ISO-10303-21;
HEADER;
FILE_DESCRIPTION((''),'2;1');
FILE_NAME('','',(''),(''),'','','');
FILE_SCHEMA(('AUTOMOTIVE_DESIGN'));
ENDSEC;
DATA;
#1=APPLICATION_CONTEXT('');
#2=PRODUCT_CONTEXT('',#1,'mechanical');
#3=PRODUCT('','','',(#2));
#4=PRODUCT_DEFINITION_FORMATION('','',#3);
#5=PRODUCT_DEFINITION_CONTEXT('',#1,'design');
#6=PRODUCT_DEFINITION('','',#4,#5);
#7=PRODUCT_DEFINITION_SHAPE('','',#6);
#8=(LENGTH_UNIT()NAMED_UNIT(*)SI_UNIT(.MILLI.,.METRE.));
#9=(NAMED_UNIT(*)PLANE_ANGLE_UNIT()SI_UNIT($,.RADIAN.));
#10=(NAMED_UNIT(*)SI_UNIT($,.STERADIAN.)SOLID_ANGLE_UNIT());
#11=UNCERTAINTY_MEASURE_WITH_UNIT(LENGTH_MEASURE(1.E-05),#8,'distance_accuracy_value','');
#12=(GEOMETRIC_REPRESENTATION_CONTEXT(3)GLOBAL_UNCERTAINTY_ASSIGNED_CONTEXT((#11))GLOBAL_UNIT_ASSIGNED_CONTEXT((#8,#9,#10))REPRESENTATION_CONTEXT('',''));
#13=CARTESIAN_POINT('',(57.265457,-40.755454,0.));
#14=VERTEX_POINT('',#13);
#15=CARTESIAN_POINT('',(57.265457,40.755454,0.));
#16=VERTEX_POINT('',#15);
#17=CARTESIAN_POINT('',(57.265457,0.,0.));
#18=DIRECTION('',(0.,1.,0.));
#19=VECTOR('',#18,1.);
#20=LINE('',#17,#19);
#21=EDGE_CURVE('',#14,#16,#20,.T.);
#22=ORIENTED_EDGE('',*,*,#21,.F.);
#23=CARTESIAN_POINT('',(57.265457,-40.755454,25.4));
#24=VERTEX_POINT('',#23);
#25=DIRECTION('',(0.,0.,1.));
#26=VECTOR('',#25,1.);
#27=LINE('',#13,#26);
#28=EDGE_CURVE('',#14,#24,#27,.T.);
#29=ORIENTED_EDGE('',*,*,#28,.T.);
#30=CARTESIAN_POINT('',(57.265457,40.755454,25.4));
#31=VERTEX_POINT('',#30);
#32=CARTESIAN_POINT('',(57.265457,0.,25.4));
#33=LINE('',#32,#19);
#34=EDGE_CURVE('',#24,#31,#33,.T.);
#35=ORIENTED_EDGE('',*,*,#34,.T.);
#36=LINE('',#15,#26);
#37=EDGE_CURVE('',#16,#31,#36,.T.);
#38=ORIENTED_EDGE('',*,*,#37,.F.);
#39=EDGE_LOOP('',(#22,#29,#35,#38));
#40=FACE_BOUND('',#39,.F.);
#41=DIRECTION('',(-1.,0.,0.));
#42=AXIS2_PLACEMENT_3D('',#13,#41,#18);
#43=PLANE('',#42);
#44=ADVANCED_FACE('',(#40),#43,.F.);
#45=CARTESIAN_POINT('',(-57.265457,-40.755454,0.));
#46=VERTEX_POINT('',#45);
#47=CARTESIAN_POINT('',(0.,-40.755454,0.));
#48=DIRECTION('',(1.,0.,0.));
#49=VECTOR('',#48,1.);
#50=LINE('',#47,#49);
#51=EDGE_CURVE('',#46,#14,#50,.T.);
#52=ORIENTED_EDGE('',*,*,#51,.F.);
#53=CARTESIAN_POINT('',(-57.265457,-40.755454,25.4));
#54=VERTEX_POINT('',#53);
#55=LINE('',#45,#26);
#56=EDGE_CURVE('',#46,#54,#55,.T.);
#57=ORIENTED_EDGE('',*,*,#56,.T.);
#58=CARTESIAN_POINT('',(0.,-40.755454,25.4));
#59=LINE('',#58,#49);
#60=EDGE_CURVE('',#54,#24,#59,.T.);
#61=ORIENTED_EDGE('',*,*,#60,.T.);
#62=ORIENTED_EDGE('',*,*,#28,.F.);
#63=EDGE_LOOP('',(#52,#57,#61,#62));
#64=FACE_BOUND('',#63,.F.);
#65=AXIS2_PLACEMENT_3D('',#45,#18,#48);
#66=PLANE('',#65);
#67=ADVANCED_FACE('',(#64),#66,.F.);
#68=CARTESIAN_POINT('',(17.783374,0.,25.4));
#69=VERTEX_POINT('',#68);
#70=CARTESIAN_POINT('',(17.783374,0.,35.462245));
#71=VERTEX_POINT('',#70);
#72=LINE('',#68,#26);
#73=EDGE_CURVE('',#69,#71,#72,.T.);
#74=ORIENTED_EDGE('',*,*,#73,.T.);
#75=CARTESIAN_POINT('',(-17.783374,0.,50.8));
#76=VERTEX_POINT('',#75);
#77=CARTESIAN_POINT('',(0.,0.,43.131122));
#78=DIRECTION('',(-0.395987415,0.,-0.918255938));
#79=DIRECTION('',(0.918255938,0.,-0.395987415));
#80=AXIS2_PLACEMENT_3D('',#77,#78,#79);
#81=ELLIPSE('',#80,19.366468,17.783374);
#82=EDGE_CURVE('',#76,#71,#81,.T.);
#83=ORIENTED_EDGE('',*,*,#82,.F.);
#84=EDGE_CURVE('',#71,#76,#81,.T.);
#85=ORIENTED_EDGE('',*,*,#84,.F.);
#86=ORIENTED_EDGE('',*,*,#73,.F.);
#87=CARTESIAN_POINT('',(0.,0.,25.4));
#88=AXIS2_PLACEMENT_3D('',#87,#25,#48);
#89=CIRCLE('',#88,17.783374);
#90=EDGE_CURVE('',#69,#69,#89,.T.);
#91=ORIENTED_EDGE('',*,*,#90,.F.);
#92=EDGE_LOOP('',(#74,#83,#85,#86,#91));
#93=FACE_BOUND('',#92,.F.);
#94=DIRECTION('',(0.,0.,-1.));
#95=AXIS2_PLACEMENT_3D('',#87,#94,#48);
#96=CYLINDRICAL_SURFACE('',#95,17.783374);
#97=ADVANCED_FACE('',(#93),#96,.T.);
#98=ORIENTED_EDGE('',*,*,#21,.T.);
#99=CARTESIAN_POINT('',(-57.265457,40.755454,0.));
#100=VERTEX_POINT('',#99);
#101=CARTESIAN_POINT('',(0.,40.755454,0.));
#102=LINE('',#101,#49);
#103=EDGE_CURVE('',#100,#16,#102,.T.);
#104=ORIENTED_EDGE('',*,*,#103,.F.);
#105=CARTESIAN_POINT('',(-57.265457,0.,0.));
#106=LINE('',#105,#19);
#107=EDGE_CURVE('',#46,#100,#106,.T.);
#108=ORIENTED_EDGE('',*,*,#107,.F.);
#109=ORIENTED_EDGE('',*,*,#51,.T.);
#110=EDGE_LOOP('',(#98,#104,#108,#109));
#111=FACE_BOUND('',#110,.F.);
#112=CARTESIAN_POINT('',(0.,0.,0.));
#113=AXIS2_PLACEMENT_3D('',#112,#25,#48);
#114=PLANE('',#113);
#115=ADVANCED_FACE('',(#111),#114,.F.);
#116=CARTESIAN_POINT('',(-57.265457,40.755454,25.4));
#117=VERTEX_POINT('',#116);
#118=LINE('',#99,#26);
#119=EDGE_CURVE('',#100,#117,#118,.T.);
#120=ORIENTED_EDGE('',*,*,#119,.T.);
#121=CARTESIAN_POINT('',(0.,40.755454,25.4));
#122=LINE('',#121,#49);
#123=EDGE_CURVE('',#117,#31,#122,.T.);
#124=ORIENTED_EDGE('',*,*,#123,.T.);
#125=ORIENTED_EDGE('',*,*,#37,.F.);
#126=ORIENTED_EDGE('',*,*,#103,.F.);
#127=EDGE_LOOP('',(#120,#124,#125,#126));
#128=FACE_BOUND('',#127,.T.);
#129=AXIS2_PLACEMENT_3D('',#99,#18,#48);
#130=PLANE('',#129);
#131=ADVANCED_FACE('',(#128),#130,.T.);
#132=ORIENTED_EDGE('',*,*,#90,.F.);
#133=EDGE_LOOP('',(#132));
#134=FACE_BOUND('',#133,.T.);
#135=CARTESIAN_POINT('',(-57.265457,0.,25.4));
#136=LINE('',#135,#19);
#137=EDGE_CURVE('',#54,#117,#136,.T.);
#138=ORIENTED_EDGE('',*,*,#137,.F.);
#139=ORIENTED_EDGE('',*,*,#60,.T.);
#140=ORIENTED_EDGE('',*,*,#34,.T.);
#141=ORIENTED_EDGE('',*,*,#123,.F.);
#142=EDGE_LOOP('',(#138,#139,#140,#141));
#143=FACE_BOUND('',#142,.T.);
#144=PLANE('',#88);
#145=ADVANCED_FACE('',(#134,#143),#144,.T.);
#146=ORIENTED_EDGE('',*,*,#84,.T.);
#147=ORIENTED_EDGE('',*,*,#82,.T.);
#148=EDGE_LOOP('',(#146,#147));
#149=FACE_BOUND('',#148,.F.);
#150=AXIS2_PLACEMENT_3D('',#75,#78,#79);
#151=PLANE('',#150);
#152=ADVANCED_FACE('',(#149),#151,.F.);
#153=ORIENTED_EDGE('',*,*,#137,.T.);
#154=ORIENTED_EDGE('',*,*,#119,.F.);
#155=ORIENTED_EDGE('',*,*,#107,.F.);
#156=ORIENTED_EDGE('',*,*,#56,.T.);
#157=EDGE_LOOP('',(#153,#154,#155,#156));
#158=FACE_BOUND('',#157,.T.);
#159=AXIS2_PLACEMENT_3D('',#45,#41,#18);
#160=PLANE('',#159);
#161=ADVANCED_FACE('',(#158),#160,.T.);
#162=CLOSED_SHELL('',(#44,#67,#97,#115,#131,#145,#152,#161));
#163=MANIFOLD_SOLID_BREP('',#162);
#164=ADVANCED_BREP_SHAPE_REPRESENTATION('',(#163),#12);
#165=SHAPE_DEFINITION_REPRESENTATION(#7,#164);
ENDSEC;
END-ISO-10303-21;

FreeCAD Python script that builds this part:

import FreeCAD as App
import Part
import Sketcher

V = App.Vector
Q = App.Units.Quantity

doc = App.newDocument("Part")
params = doc.addObject("Spreadsheet::Sheet", "Params")
for row, (alias, value) in enumerate([
    ("pad1_length", "1 in"),
    ("pad2_length", "1 in"),
    ("pocket1_length", "3 in"),
], start=1):
    params.set(f"A{row}", alias)
    params.set(f"B{row}", "=" + value)
    params.setAlias(f"B{row}", alias)

body = doc.addObject("PartDesign::Body", "Body")

# Sketch on XY plane
sketch1 = doc.addObject("Sketcher::SketchObject", "Sketch")
body.addObject(sketch1)
sketch1.AttachmentSupport = (doc.XY_Plane, [""])
sketch1.MapMode = "FlatFace"
sketch1.addGeometry(Part.LineSegment(V(-57, 41, 0), V(-57, -41, 0)), False)
sketch1.addGeometry(Part.LineSegment(V(-57, -41, 0), V(57, -41, 0)), False)
sketch1.addGeometry(Part.LineSegment(V(57, -41, 0), V(57, 41, 0)), False)
sketch1.addGeometry(Part.LineSegment(V(57, 41, 0), V(-57, 41, 0)), False)
sketch1.addConstraint(Sketcher.Constraint("Coincident", 0, 2, 1, 1))
sketch1.addConstraint(Sketcher.Constraint("Coincident", 1, 2, 2, 1))
sketch1.addConstraint(Sketcher.Constraint("Coincident", 2, 2, 3, 1))
sketch1.addConstraint(Sketcher.Constraint("Coincident", 3, 2, 0, 1))
sketch1.addConstraint(Sketcher.Constraint("Vertical", 0))
sketch1.addConstraint(Sketcher.Constraint("Horizontal", 1))
sketch1.addConstraint(Sketcher.Constraint("Vertical", 2))
sketch1.addConstraint(Sketcher.Constraint("Horizontal", 3))
sketch1.addConstraint(Sketcher.Constraint("Symmetric", 0, 2, 2, 2, -1, 1))
sketch1.addConstraint(Sketcher.Constraint("DistanceY", 0, 2, 0, 1, Q("81.510908 mm")))
sketch1.addConstraint(Sketcher.Constraint("DistanceX", 1, 1, 1, 2, Q("114.530914 mm")))
pad1 = doc.addObject("PartDesign::Pad", "Pad")
body.addObject(pad1)
pad1.Profile = sketch1
pad1.setExpression("Length", "Params.pad1_length")

# Sketch on XY plane
sketch2 = doc.addObject("Sketcher::SketchObject", "Sketch001")
body.addObject(sketch2)
sketch2.AttachmentSupport = (doc.XY_Plane, [""])
sketch2.MapMode = "FlatFace"
sketch2.AttachmentOffset = App.Placement(V(0, 0, 1 * 25.4), App.Rotation())
sketch2.addGeometry(Part.Circle(V(0, 0, 0), V(0, 0, 1), 18), False)
sketch2.addConstraint(Sketcher.Constraint("Coincident", 0, 3, -1, 1))
sketch2.addConstraint(Sketcher.Constraint("Diameter", 0, Q("35.566748 mm")))
pad2 = doc.addObject("PartDesign::Pad", "Pad001")
body.addObject(pad2)
pad2.Profile = sketch2
pad2.setExpression("Length", "Params.pad2_length")

# Sketch on XZ plane
sketch3 = doc.addObject("Sketcher::SketchObject", "Sketch002")
body.addObject(sketch3)
sketch3.AttachmentSupport = (doc.XZ_Plane, [""])
sketch3.MapMode = "FlatFace"
sketch3.addGeometry(Part.LineSegment(V(18, 51, 0), V(-18, 51, 0)), False)
sketch3.addGeometry(Part.LineSegment(V(-18, 51, 0), V(18, 35, 0)), False)
sketch3.addGeometry(Part.LineSegment(V(18, 35, 0), V(18, 51, 0)), False)
sketch3.addConstraint(Sketcher.Constraint("Coincident", 0, 2, 1, 1))
sketch3.addConstraint(Sketcher.Constraint("Coincident", 1, 2, 2, 1))
sketch3.addConstraint(Sketcher.Constraint("Coincident", 2, 2, 0, 1))
sketch3.addConstraint(Sketcher.Constraint("Horizontal", 0))
sketch3.addConstraint(Sketcher.Constraint("Vertical", 2))
sketch3.addConstraint(Sketcher.Constraint("DistanceY", -1, 1, 0, 2, Q("2 in")))
sketch3.addConstraint(Sketcher.Constraint("DistanceX", 0, 2, 0, 1, Q("35.566748 mm")))
sketch3.addConstraint(Sketcher.Constraint("DistanceY", 2, 1, 2, 2, Q("15.337755 mm")))
sketch3.addConstraint(Sketcher.Constraint("DistanceX", 0, 2, -1, 1, Q("17.783374 mm")))
pocket1 = doc.addObject("PartDesign::Pocket", "Pocket")
body.addObject(pocket1)
pocket1.Profile = sketch3
pocket1.setExpression("Length", "Params.pocket1_length")
pocket1.Midplane = True

doc.recompute()
